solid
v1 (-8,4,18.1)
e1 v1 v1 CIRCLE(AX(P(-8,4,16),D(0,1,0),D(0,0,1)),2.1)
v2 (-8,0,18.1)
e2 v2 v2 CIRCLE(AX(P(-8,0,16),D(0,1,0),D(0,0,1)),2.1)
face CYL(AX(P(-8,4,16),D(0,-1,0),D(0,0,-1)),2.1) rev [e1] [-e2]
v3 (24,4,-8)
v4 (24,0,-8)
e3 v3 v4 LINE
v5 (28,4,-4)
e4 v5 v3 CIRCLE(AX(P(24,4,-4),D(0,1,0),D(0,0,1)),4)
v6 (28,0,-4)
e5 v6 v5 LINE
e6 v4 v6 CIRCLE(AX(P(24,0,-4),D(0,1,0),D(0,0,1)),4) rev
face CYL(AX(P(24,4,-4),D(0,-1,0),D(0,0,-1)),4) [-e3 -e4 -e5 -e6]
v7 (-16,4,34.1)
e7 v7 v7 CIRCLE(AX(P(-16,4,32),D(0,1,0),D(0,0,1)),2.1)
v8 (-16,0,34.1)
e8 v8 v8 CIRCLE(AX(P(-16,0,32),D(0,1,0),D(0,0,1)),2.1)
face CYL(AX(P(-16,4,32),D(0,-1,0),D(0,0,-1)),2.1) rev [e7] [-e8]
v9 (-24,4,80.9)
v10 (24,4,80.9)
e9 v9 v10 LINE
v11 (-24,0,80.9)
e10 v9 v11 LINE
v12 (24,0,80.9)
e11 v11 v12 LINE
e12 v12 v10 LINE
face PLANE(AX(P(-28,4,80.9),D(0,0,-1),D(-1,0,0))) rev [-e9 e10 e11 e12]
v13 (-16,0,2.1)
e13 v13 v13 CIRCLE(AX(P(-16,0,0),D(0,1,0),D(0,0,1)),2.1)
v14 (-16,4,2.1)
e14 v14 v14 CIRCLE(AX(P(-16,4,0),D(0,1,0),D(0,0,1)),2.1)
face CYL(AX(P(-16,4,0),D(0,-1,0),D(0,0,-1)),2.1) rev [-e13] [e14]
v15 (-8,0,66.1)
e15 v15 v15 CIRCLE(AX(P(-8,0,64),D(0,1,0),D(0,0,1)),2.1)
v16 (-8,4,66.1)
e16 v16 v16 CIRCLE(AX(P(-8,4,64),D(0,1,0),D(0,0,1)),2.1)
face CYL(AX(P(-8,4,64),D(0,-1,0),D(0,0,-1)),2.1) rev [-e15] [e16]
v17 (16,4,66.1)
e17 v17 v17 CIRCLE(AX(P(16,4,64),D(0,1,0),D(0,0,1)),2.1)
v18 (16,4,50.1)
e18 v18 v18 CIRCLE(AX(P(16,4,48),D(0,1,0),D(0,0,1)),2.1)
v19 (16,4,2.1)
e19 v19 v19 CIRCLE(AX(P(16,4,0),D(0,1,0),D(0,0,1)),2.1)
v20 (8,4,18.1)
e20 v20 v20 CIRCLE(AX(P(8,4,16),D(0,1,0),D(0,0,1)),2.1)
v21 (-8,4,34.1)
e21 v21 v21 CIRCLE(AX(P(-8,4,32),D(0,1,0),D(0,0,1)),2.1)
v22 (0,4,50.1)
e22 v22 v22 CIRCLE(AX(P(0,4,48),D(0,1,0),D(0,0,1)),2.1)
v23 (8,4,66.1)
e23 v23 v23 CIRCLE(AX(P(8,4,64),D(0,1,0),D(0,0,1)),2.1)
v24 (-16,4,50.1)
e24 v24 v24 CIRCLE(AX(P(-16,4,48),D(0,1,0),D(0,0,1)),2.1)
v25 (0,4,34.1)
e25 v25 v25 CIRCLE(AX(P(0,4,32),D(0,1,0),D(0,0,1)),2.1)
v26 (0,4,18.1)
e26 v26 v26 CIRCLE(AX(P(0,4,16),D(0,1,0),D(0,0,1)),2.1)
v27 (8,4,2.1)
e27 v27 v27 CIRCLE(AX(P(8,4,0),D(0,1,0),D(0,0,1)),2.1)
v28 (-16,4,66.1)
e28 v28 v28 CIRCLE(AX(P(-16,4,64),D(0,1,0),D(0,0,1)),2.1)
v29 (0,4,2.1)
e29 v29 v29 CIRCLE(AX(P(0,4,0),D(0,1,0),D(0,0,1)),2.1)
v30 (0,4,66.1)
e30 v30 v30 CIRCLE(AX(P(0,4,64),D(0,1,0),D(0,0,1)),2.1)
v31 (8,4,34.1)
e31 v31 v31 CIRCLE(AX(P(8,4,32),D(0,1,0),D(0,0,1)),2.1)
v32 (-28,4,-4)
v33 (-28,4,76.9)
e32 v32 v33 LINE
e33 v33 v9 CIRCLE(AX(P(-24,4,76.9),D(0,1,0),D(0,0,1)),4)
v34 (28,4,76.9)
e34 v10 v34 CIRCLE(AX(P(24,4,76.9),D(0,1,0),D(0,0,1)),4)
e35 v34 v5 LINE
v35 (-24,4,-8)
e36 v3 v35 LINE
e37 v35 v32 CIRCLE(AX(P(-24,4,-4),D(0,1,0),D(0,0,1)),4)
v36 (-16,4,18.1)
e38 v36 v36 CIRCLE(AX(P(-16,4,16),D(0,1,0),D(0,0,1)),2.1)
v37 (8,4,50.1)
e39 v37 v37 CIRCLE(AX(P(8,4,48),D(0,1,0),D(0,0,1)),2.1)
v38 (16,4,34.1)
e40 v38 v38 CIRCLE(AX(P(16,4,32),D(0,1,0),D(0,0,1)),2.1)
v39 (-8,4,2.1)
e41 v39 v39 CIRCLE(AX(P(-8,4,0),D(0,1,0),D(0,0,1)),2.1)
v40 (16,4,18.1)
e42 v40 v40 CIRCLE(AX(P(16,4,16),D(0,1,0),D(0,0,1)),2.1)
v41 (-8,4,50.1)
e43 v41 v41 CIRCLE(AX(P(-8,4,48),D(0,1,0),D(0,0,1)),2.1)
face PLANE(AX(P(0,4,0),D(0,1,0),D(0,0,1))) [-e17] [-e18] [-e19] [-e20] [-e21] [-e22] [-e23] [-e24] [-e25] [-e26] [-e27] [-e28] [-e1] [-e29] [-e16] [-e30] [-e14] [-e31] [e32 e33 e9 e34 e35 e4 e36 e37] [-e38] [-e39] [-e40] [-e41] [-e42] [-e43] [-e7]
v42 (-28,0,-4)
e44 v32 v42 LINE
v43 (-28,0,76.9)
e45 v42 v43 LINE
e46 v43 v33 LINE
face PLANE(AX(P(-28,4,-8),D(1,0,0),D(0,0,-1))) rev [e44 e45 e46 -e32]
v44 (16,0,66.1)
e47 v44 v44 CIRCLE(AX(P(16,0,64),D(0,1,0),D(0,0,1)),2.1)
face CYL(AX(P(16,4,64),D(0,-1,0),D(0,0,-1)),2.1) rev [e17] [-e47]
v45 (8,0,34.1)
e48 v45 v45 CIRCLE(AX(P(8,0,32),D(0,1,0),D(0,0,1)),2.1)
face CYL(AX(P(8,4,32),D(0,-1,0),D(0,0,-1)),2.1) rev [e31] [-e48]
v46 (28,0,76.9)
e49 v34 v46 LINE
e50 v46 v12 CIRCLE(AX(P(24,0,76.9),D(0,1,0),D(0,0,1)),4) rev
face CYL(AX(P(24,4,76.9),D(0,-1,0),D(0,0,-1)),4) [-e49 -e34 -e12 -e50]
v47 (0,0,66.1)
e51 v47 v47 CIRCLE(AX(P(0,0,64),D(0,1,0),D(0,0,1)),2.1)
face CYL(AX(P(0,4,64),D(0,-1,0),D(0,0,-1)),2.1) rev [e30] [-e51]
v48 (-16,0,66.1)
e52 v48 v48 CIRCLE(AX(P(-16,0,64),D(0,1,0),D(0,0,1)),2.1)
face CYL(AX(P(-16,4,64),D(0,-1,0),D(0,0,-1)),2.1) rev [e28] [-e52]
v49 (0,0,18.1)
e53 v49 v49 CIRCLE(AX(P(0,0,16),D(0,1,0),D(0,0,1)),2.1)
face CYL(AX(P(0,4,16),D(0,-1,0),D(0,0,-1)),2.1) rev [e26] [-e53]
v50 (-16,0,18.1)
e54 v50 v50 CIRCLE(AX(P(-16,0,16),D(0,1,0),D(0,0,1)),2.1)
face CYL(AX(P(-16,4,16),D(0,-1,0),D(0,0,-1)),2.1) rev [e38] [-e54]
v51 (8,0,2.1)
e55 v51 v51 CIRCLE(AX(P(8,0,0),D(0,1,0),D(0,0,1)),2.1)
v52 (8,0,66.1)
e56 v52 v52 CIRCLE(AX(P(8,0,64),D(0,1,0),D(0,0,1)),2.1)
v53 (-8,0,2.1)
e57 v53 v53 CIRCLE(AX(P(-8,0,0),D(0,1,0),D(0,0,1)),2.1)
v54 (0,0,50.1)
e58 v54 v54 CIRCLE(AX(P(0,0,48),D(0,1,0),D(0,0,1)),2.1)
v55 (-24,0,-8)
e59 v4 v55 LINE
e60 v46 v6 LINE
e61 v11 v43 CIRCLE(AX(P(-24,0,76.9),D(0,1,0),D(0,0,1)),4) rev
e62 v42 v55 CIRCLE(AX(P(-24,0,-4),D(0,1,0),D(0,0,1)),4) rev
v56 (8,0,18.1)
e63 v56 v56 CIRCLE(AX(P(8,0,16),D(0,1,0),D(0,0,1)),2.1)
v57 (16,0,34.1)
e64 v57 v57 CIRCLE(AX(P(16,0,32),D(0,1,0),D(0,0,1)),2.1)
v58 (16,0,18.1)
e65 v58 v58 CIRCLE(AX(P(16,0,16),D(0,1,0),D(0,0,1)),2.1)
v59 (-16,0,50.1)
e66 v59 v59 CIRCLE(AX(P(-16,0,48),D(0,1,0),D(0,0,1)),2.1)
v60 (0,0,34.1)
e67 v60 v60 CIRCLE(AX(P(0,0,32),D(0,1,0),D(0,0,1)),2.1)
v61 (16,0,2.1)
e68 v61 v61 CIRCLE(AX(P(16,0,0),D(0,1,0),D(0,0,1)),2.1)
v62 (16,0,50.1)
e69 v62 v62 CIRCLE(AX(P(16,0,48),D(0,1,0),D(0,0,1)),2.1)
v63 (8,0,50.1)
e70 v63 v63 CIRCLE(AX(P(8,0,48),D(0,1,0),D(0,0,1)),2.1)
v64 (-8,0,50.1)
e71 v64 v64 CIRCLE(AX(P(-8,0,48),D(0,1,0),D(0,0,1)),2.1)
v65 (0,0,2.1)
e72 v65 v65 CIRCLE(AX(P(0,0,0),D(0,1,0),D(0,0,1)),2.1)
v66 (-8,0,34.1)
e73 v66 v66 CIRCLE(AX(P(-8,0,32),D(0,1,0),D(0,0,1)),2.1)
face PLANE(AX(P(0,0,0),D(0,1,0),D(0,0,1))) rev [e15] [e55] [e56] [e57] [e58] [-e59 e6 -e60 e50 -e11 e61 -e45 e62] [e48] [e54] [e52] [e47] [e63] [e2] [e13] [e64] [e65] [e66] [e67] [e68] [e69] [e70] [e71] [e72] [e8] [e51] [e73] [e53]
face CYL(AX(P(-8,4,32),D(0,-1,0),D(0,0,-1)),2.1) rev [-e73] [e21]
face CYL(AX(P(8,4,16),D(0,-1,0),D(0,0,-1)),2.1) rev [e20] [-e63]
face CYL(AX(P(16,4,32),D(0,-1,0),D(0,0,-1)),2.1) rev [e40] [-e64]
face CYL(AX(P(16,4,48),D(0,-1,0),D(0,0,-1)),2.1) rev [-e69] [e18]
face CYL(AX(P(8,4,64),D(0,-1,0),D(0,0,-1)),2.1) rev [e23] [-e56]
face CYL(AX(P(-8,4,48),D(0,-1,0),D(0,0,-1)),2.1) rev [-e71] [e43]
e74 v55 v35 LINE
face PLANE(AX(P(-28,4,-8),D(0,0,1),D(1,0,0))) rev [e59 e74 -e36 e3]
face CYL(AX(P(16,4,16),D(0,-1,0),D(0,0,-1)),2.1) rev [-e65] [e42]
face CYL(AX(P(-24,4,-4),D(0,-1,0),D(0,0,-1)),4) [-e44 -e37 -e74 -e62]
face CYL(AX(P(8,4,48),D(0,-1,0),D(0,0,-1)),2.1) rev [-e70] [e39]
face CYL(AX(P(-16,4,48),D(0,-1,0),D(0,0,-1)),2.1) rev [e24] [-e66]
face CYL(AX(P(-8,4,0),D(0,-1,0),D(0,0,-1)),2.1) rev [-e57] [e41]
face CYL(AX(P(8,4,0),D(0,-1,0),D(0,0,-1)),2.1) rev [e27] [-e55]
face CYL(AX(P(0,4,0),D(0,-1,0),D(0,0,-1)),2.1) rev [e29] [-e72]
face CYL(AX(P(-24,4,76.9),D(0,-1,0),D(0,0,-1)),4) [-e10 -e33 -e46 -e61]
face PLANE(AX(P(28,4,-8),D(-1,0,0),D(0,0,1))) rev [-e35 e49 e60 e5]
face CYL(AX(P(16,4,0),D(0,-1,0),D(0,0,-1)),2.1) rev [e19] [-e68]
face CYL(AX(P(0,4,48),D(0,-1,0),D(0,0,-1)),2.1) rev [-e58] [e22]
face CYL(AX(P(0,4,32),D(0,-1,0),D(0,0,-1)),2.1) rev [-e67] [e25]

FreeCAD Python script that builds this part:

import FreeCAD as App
import Part
import Sketcher
Q = App.Units.Quantity


def edges_at(feature, points):
    """Names of the edges that pass closest to the given points."""
    edges = feature.Shape.Edges
    near = lambda p: min(range(len(edges)), key=lambda i: edges[i].distToShape(Part.Vertex(*p))[0])
    return sorted({f"Edge{near(p) + 1}" for p in points})

doc = App.newDocument("Part")
body = doc.addObject("PartDesign::Body", "Body")

sketch1 = body.newObject("Sketcher::SketchObject", "Sketch")
sketch1.AttachmentSupport = (doc.getObject("XZ_Plane"), [""])
sketch1.MapMode = "FlatFace"
sketch1.addGeometry(Part.LineSegment(App.Vector(-28, -8, 0), App.Vector(-28, 80.9, 0)), False)
sketch1.addGeometry(Part.LineSegment(App.Vector(-28, 80.9, 0), App.Vector(28, 80.9, 0)), False)
sketch1.addGeometry(Part.LineSegment(App.Vector(28, 80.9, 0), App.Vector(28, -8, 0)), False)
sketch1.addGeometry(Part.LineSegment(App.Vector(28, -8, 0), App.Vector(-28, -8, 0)), False)
sketch1.addGeometry(Part.Circle(App.Vector(-16, 64, 0), App.Vector(0, 0, 1), 2.1), False)
sketch1.addGeometry(Part.Circle(App.Vector(-8, 64, 0), App.Vector(0, 0, 1), 2.1), False)
sketch1.addGeometry(Part.Circle(App.Vector(-16, 48, 0), App.Vector(0, 0, 1), 2.1), False)
sketch1.addGeometry(Part.Circle(App.Vector(-8, 48, 0), App.Vector(0, 0, 1), 2.1), False)
sketch1.addGeometry(Part.Circle(App.Vector(0, 64, 0), App.Vector(0, 0, 1), 2.1), False)
sketch1.addGeometry(Part.Circle(App.Vector(8, 64, 0), App.Vector(0, 0, 1), 2.1), False)
sketch1.addGeometry(Part.Circle(App.Vector(16, 64, 0), App.Vector(0, 0, 1), 2.1), False)
sketch1.addGeometry(Part.Circle(App.Vector(0, 48, 0), App.Vector(0, 0, 1), 2.1), False)
sketch1.addGeometry(Part.Circle(App.Vector(8, 48, 0), App.Vector(0, 0, 1), 2.1), False)
sketch1.addGeometry(Part.Circle(App.Vector(16, 48, 0), App.Vector(0, 0, 1), 2.1), False)
sketch1.addGeometry(Part.Circle(App.Vector(-16, 32, 0), App.Vector(0, 0, 1), 2.1), False)
sketch1.addGeometry(Part.Circle(App.Vector(-16, 16, 0), App.Vector(0, 0, 1), 2.1), False)
sketch1.addGeometry(Part.Circle(App.Vector(-8, 32, 0), App.Vector(0, 0, 1), 2.1), False)
sketch1.addGeometry(Part.Circle(App.Vector(-8, 16, 0), App.Vector(0, 0, 1), 2.1), False)
sketch1.addGeometry(Part.Circle(App.Vector(-16, 0, 0), App.Vector(0, 0, 1), 2.1), False)
sketch1.addGeometry(Part.Circle(App.Vector(-8, 0, 0), App.Vector(0, 0, 1), 2.1), False)
sketch1.addGeometry(Part.Circle(App.Vector(0, 32, 0), App.Vector(0, 0, 1), 2.1), False)
sketch1.addGeometry(Part.Circle(App.Vector(8, 32, 0), App.Vector(0, 0, 1), 2.1), False)
sketch1.addGeometry(Part.Circle(App.Vector(0, 16, 0), App.Vector(0, 0, 1), 2.1), False)
sketch1.addGeometry(Part.Circle(App.Vector(8, 16, 0), App.Vector(0, 0, 1), 2.1), False)
sketch1.addGeometry(Part.Circle(App.Vector(16, 32, 0), App.Vector(0, 0, 1), 2.1), False)
sketch1.addGeometry(Part.Circle(App.Vector(16, 16, 0), App.Vector(0, 0, 1), 2.1), False)
sketch1.addGeometry(Part.Circle(App.Vector(0, 0, 0), App.Vector(0, 0, 1), 2.1), False)
sketch1.addGeometry(Part.Circle(App.Vector(8, 0, 0), App.Vector(0, 0, 1), 2.1), False)
sketch1.addGeometry(Part.Circle(App.Vector(16, 0, 0), App.Vector(0, 0, 1), 2.1), False)
sketch1.addConstraint(Sketcher.Constraint("Coincident", 0, 2, 1, 1))
sketch1.addConstraint(Sketcher.Constraint("Coincident", 1, 2, 2, 1))
sketch1.addConstraint(Sketcher.Constraint("Coincident", 2, 2, 3, 1))
sketch1.addConstraint(Sketcher.Constraint("Coincident", 3, 2, 0, 1))
sketch1.addConstraint(Sketcher.Constraint("Vertical", 0))
sketch1.addConstraint(Sketcher.Constraint("Horizontal", 1))
sketch1.addConstraint(Sketcher.Constraint("Vertical", 2))
sketch1.addConstraint(Sketcher.Constraint("Horizontal", 3))
sketch1.addConstraint(Sketcher.Constraint("Coincident", 26, 3, -1, 1))
sketch1.addConstraint(Sketcher.Constraint("Equal", 4, 5))
sketch1.addConstraint(Sketcher.Constraint("Equal", 5, 6))
sketch1.addConstraint(Sketcher.Constraint("Equal", 6, 7))
sketch1.addConstraint(Sketcher.Constraint("Equal", 7, 8))
sketch1.addConstraint(Sketcher.Constraint("Equal", 8, 9))
sketch1.addConstraint(Sketcher.Constraint("Equal", 9, 10))
sketch1.addConstraint(Sketcher.Constraint("Equal", 10, 11))
sketch1.addConstraint(Sketcher.Constraint("Equal", 11, 12))
sketch1.addConstraint(Sketcher.Constraint("Equal", 12, 13))
sketch1.addConstraint(Sketcher.Constraint("Equal", 13, 14))
sketch1.addConstraint(Sketcher.Constraint("Equal", 14, 15))
sketch1.addConstraint(Sketcher.Constraint("Equal", 15, 16))
sketch1.addConstraint(Sketcher.Constraint("Equal", 16, 17))
sketch1.addConstraint(Sketcher.Constraint("Equal", 17, 18))
sketch1.addConstraint(Sketcher.Constraint("Equal", 18, 19))
sketch1.addConstraint(Sketcher.Constraint("Equal", 19, 20))
sketch1.addConstraint(Sketcher.Constraint("Equal", 20, 21))
sketch1.addConstraint(Sketcher.Constraint("Equal", 21, 22))
sketch1.addConstraint(Sketcher.Constraint("Equal", 22, 23))
sketch1.addConstraint(Sketcher.Constraint("Equal", 23, 24))
sketch1.addConstraint(Sketcher.Constraint("Equal", 24, 25))
sketch1.addConstraint(Sketcher.Constraint("Equal", 25, 26))
sketch1.addConstraint(Sketcher.Constraint("Equal", 26, 27))
sketch1.addConstraint(Sketcher.Constraint("Equal", 27, 28))
sketch1.addConstraint(Sketcher.Constraint("Symmetric", 19, 3, 27, 3, -1, 1))
sketch1.addConstraint(Sketcher.Constraint("Symmetric", 18, 3, 28, 3, -1, 1))
sketch1.addConstraint(Sketcher.Constraint("Symmetric", 5, 3, 9, 3, -2))
sketch1.addConstraint(Sketcher.Constraint("Symmetric", 4, 3, 10, 3, -2))
sketch1.addConstraint(Sketcher.Constraint("Symmetric", 7, 3, 12, 3, -2))
sketch1.addConstraint(Sketcher.Constraint("Symmetric", 6, 3, 13, 3, -2))
sketch1.addConstraint(Sketcher.Constraint("Symmetric", 16, 3, 21, 3, -2))
sketch1.addConstraint(Sketcher.Constraint("Symmetric", 17, 3, 23, 3, -2))
sketch1.addConstraint(Sketcher.Constraint("Symmetric", 14, 3, 24, 3, -2))
sketch1.addConstraint(Sketcher.Constraint("Symmetric", 15, 3, 25, 3, -2))
sketch1.addConstraint(Sketcher.Constraint("PointOnObject", 8, 3, -2))
sketch1.addConstraint(Sketcher.Constraint("PointOnObject", 11, 3, -2))
sketch1.addConstraint(Sketcher.Constraint("PointOnObject", 18, 3, -1))
sketch1.addConstraint(Sketcher.Constraint("PointOnObject", 19, 3, -1))
sketch1.addConstraint(Sketcher.Constraint("PointOnObject", 20, 3, -2))
sketch1.addConstraint(Sketcher.Constraint("PointOnObject", 22, 3, -2))
sketch1.addConstraint(Sketcher.Constraint("Horizontal", 4, 3, 5, 3))
sketch1.addConstraint(Sketcher.Constraint("Horizontal", 6, 3, 7, 3))
sketch1.addConstraint(Sketcher.Constraint("Horizontal", 5, 3, 8, 3))
sketch1.addConstraint(Sketcher.Constraint("Horizontal", 7, 3, 11, 3))
sketch1.addConstraint(Sketcher.Constraint("Horizontal", 14, 3, 16, 3))
sketch1.addConstraint(Sketcher.Constraint("Horizontal", 15, 3, 17, 3))
sketch1.addConstraint(Sketcher.Constraint("Horizontal", 16, 3, 20, 3))
sketch1.addConstraint(Sketcher.Constraint("Horizontal", 17, 3, 22, 3))
sketch1.addConstraint(Sketcher.Constraint("Vertical", 4, 3, 6, 3))
sketch1.addConstraint(Sketcher.Constraint("Vertical", 5, 3, 7, 3))
sketch1.addConstraint(Sketcher.Constraint("Vertical", 6, 3, 14, 3))
sketch1.addConstraint(Sketcher.Constraint("Vertical", 14, 3, 15, 3))
sketch1.addConstraint(Sketcher.Constraint("Vertical", 7, 3, 16, 3))
sketch1.addConstraint(Sketcher.Constraint("Vertical", 16, 3, 17, 3))
sketch1.addConstraint(Sketcher.Constraint("Vertical", 15, 3, 18, 3))
sketch1.addConstraint(Sketcher.Constraint("Vertical", 17, 3, 19, 3))
sketch1.addConstraint(Sketcher.Constraint("Diameter", 4, Q("4.2 mm")))
sketch1.addConstraint(Sketcher.Constraint("DistanceX", 1, 1, 1, 2, Q("56 mm")))
sketch1.addConstraint(Sketcher.Constraint("DistanceY", 0, 1, 0, 2, Q("88.9 mm")))
sketch1.addConstraint(Sketcher.Constraint("DistanceX", 4, 3, -1, 1, Q("16 mm")))
sketch1.addConstraint(Sketcher.Constraint("DistanceY", -1, 1, 4, 3, Q("64 mm")))
sketch1.addConstraint(Sketcher.Constraint("DistanceX", 5, 3, -1, 1, Q("8 mm")))
sketch1.addConstraint(Sketcher.Constraint("DistanceY", -1, 1, 6, 3, Q("48 mm")))
sketch1.addConstraint(Sketcher.Constraint("DistanceY", -1, 1, 14, 3, Q("32 mm")))
sketch1.addConstraint(Sketcher.Constraint("DistanceY", -1, 1, 15, 3, Q("16 mm")))
sketch1.addConstraint(Sketcher.Constraint("DistanceX", 0, 2, -1, 1, Q("28 mm")))
sketch1.addConstraint(Sketcher.Constraint("DistanceY", 2, 2, -1, 1, Q("8 mm")))
pad1 = body.newObject("PartDesign::Pad", "Pad")
pad1.Profile = sketch1
pad1.Length = 4
pad1.Reversed = True
doc.recompute()

fillet = body.newObject("PartDesign::Fillet", "Fillet")
fillet.Base = (pad1, edges_at(pad1, [
    (-28, 2, -8),
    (28, 2, -8),
    (28, 2, 80.9),
    (-28, 2, 80.9),
]))
fillet.Radius = 4

doc.recompute()
